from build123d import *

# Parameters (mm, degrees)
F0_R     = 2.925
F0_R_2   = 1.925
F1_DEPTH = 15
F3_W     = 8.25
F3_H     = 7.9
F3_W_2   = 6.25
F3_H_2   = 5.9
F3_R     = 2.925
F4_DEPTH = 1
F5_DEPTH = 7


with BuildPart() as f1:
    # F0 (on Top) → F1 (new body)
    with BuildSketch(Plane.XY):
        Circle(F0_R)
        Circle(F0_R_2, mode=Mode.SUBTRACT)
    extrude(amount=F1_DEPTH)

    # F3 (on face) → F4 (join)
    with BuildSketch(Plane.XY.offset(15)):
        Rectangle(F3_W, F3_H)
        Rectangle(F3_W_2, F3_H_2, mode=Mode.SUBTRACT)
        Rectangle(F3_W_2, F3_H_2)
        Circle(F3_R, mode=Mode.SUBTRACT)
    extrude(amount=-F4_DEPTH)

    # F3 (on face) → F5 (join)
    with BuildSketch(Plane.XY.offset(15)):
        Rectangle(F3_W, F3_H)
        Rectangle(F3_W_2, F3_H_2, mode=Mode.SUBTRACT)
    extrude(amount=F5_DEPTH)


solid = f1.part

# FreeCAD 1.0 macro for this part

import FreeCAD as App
import Part
import Sketcher
from FreeCAD import Vector

doc = App.newDocument("Part")
body = doc.addObject("PartDesign::Body", "Body")

# Sketch on XY plane
sketch1 = doc.addObject("Sketcher::SketchObject", "Sketch")
body.addObject(sketch1)
sketch1.AttachmentSupport = (doc.XY_Plane, [""])
sketch1.MapMode = "FlatFace"
sketch1.addGeometry(Part.Circle(Vector(0, 0, 0), Vector(0, 0, 1), 2.9), False)
sketch1.addGeometry(Part.Circle(Vector(0, 0, 0), Vector(0, 0, 1), 1.9), False)
sketch1.addConstraint(Sketcher.Constraint("Coincident", 0, 3, -1, 1))
sketch1.addConstraint(Sketcher.Constraint("Coincident", 1, 3, -1, 1))
sketch1.addConstraint(Sketcher.Constraint("Diameter", 0, 5.85))
sketch1.addConstraint(Sketcher.Constraint("Diameter", 1, 3.85))
pad1 = doc.addObject("PartDesign::Pad", "Pad")
body.addObject(pad1)
pad1.Profile = sketch1
pad1.Length = 15

# Sketch on XY plane
sketch2 = doc.addObject("Sketcher::SketchObject", "Sketch001")
body.addObject(sketch2)
sketch2.AttachmentSupport = (doc.XY_Plane, [""])
sketch2.MapMode = "FlatFace"
sketch2.AttachmentOffset = App.Placement(Vector(0, 0, 15), App.Rotation())
sketch2.addGeometry(Part.LineSegment(Vector(-4.1, 4, 0), Vector(-4.1, -4, 0)), False)
sketch2.addGeometry(Part.LineSegment(Vector(-4.1, -4, 0), Vector(4.1, -4, 0)), False)
sketch2.addGeometry(Part.LineSegment(Vector(4.1, -4, 0), Vector(4.1, 4, 0)), False)
sketch2.addGeometry(Part.LineSegment(Vector(4.1, 4, 0), Vector(-4.1, 4, 0)), False)
sketch2.addGeometry(Part.Circle(Vector(0, 0, 0), Vector(0, 0, 1), 2.9), False)
sketch2.addConstraint(Sketcher.Constraint("Coincident", 0, 2, 1, 1))
sketch2.addConstraint(Sketcher.Constraint("Coincident", 1, 2, 2, 1))
sketch2.addConstraint(Sketcher.Constraint("Coincident", 2, 2, 3, 1))
sketch2.addConstraint(Sketcher.Constraint("Coincident", 3, 2, 0, 1))
sketch2.addConstraint(Sketcher.Constraint("Vertical", 0))
sketch2.addConstraint(Sketcher.Constraint("Horizontal", 1))
sketch2.addConstraint(Sketcher.Constraint("Vertical", 2))
sketch2.addConstraint(Sketcher.Constraint("Horizontal", 3))
sketch2.addConstraint(Sketcher.Constraint("Coincident", 4, 3, -1, 1))
sketch2.addConstraint(Sketcher.Constraint("Symmetric", 0, 2, 2, 2, -1, 1))
sketch2.addConstraint(Sketcher.Constraint("Diameter", 4, 5.85))
sketch2.addConstraint(Sketcher.Constraint("DistanceY", 0, 2, 0, 1, 7.9))
sketch2.addConstraint(Sketcher.Constraint("DistanceX", 1, 1, 1, 2, 8.25))
pad2 = doc.addObject("PartDesign::Pad", "Pad001")
body.addObject(pad2)
pad2.Profile = sketch2
pad2.Length = 1
pad2.Reversed = True

# Sketch on XY plane
sketch3 = doc.addObject("Sketcher::SketchObject", "Sketch002")
body.addObject(sketch3)
sketch3.AttachmentSupport = (doc.XY_Plane, [""])
sketch3.MapMode = "FlatFace"
sketch3.AttachmentOffset = App.Placement(Vector(0, 0, 15), App.Rotation())
sketch3.addGeometry(Part.LineSegment(Vector(-4, 4, 0), Vector(-4, -4, 0)), False)
sketch3.addGeometry(Part.LineSegment(Vector(-4, -4, 0), Vector(4, -4, 0)), False)
sketch3.addGeometry(Part.LineSegment(Vector(4, -4, 0), Vector(4, 4, 0)), False)
sketch3.addGeometry(Part.LineSegment(Vector(4, 4, 0), Vector(-4, 4, 0)), False)
sketch3.addGeometry(Part.LineSegment(Vector(3, -3, 0), Vector(-3, -3, 0)), False)
sketch3.addGeometry(Part.LineSegment(Vector(-3, -3, 0), Vector(-3, 3, 0)), False)
sketch3.addGeometry(Part.LineSegment(Vector(-3, 3, 0), Vector(3, 3, 0)), False)
sketch3.addGeometry(Part.LineSegment(Vector(3, 3, 0), Vector(3, -3, 0)), False)
sketch3.addConstraint(Sketcher.Constraint("Coincident", 0, 2, 1, 1))
sketch3.addConstraint(Sketcher.Constraint("Coincident", 1, 2, 2, 1))
sketch3.addConstraint(Sketcher.Constraint("Coincident", 2, 2, 3, 1))
sketch3.addConstraint(Sketcher.Constraint("Coincident", 3, 2, 0, 1))
sketch3.addConstraint(Sketcher.Constraint("Coincident", 4, 2, 5, 1))
sketch3.addConstraint(Sketcher.Constraint("Coincident", 5, 2, 6, 1))
sketch3.addConstraint(Sketcher.Constraint("Coincident", 6, 2, 7, 1))
sketch3.addConstraint(Sketcher.Constraint("Coincident", 7, 2, 4, 1))
sketch3.addConstraint(Sketcher.Constraint("Vertical", 0))
sketch3.addConstraint(Sketcher.Constraint("Horizontal", 1))
sketch3.addConstraint(Sketcher.Constraint("Vertical", 2))
sketch3.addConstraint(Sketcher.Constraint("Horizontal", 3))
sketch3.addConstraint(Sketcher.Constraint("Horizontal", 4))
sketch3.addConstraint(Sketcher.Constraint("Vertical", 5))
sketch3.addConstraint(Sketcher.Constraint("Horizontal", 6))
sketch3.addConstraint(Sketcher.Constraint("Vertical", 7))
sketch3.addConstraint(Sketcher.Constraint("Symmetric", 0, 2, 2, 2, -1, 1))
sketch3.addConstraint(Sketcher.Constraint("Symmetric", 4, 2, 6, 2, -1, 1))
sketch3.addConstraint(Sketcher.Constraint("DistanceY", 0, 2, 0, 1, 7.9))
sketch3.addConstraint(Sketcher.Constraint("DistanceY", 5, 1, 5, 2, 5.9))
sketch3.addConstraint(Sketcher.Constraint("DistanceX", 0, 2, 4, 2, 1.0))
sketch3.addConstraint(Sketcher.Constraint("DistanceX", 1, 1, 1, 2, 8.25))
pad3 = doc.addObject("PartDesign::Pad", "Pad002")
body.addObject(pad3)
pad3.Profile = sketch3
pad3.Length = 7

doc.recompute()
